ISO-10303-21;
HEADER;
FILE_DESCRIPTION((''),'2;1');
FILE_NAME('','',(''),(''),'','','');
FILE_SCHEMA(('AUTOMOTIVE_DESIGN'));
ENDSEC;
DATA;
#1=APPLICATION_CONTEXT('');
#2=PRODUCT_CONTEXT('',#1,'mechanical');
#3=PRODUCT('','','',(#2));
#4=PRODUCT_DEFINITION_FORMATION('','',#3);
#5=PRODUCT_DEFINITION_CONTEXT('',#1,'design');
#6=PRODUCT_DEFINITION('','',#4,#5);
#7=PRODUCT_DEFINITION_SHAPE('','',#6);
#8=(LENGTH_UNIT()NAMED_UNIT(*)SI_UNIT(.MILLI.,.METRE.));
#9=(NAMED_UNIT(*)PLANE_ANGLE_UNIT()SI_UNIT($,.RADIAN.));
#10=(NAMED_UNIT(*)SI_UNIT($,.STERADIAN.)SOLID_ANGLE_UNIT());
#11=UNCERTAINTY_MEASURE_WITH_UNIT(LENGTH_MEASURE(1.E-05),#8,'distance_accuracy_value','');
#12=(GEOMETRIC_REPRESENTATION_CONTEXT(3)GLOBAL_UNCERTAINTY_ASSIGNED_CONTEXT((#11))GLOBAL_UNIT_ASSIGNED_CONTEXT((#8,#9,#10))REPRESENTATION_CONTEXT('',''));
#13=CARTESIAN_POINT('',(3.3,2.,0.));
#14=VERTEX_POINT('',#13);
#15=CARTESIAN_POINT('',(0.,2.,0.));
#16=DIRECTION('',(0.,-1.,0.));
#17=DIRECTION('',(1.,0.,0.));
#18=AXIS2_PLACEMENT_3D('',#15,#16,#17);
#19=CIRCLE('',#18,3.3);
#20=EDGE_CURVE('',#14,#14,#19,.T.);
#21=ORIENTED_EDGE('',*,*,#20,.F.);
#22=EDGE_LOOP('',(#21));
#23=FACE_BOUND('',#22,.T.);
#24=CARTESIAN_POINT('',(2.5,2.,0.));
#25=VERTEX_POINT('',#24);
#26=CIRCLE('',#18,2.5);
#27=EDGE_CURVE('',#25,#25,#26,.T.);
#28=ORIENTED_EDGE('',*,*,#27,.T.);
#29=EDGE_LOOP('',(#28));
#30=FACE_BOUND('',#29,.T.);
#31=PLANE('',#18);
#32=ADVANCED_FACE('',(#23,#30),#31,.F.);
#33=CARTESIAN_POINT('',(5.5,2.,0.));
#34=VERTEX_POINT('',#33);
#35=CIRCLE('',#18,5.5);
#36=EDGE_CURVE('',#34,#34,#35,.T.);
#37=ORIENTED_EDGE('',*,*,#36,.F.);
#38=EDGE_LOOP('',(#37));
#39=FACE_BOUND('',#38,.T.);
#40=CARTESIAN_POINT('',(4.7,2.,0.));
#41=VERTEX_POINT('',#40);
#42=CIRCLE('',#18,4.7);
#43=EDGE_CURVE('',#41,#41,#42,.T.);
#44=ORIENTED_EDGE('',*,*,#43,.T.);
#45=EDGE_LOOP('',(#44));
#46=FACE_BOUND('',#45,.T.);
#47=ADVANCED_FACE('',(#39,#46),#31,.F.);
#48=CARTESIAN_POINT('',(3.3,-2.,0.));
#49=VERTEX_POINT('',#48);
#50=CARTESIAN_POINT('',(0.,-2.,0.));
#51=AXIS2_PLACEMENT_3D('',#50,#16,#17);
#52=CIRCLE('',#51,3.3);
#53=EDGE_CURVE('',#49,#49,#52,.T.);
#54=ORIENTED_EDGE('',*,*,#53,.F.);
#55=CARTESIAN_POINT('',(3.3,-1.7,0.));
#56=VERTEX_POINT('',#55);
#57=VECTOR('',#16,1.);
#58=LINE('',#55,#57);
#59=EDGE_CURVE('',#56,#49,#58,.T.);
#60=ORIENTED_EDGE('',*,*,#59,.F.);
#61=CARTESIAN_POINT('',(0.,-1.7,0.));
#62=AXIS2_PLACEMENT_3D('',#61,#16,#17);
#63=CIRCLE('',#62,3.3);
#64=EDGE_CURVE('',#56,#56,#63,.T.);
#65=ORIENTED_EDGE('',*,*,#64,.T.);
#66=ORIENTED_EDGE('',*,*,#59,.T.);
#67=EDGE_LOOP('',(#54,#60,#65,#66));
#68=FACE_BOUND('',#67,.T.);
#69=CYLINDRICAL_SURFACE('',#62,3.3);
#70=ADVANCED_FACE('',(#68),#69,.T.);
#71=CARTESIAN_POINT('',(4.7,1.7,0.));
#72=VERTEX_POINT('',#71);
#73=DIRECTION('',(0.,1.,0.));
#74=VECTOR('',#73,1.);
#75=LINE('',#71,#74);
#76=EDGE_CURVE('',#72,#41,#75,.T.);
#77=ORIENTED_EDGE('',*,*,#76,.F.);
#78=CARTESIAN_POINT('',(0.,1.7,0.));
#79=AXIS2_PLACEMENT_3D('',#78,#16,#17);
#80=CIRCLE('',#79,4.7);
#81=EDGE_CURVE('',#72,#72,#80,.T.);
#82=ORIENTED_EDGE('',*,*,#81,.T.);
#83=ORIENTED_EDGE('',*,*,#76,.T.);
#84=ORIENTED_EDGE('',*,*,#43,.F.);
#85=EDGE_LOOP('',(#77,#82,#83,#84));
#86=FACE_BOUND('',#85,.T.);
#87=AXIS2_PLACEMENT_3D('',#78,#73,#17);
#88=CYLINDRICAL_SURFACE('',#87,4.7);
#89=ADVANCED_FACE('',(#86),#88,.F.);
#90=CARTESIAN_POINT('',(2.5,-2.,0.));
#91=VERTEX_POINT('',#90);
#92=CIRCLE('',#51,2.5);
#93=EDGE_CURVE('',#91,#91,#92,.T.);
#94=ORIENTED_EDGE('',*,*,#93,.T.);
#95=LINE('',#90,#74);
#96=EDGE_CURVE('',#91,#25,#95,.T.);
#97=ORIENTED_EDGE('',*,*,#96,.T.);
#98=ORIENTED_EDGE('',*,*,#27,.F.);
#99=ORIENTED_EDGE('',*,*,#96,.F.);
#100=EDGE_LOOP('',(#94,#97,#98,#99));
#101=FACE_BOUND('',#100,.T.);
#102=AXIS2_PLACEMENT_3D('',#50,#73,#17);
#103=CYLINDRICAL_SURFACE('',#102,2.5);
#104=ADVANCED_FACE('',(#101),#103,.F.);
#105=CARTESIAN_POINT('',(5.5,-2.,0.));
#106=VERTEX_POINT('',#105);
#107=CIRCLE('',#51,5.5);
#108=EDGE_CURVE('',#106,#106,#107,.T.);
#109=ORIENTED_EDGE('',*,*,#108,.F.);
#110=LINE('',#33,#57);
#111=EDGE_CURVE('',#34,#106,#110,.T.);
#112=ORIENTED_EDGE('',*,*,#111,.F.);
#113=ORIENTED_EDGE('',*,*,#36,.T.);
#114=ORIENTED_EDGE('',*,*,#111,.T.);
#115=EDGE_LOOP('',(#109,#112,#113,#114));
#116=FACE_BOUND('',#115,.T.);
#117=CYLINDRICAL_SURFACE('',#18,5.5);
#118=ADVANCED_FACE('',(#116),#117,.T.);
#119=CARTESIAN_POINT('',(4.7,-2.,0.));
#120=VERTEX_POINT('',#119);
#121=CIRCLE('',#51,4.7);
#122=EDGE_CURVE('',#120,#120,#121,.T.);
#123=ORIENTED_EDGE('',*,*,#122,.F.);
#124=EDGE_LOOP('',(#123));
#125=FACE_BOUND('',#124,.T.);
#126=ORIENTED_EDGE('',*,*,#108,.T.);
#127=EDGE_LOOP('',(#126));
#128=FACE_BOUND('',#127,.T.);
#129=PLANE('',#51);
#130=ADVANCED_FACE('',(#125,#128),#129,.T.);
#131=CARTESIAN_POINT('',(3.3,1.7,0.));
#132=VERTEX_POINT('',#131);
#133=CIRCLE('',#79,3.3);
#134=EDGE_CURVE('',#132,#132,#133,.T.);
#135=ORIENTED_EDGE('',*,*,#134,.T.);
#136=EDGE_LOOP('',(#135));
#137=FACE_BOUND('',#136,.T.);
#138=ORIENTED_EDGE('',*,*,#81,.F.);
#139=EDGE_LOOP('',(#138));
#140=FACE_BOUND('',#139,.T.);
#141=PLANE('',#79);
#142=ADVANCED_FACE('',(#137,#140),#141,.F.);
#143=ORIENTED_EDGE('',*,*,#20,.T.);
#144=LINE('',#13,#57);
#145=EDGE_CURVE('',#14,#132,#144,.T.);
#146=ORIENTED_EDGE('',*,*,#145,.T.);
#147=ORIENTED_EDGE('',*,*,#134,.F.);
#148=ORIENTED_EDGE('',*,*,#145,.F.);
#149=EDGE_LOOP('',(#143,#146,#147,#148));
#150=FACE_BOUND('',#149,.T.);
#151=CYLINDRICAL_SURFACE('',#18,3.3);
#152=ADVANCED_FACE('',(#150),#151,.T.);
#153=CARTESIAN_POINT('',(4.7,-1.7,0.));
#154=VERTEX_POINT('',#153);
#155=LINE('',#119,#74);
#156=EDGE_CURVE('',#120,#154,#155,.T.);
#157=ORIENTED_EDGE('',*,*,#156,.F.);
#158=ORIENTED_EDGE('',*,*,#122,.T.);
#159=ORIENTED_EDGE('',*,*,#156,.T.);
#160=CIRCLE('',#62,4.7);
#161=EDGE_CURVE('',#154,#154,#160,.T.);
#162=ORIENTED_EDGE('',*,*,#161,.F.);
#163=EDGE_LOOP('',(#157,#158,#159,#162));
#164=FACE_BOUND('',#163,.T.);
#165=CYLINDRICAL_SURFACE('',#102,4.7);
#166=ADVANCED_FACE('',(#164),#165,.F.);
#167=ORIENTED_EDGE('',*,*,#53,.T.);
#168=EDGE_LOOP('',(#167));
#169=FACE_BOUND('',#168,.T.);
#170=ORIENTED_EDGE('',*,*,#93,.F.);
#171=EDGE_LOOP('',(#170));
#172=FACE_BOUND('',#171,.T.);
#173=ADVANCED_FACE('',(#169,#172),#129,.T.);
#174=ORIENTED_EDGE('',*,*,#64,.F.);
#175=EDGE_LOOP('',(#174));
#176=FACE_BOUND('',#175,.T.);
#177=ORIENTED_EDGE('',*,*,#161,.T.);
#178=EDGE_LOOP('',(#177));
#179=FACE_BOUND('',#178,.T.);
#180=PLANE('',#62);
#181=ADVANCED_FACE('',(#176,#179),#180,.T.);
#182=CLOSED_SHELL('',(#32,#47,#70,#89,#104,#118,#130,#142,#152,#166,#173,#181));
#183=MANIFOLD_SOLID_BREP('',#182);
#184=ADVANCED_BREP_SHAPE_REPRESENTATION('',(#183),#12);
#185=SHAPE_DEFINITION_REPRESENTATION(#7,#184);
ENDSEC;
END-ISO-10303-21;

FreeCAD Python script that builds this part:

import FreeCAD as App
import Part
import Sketcher

V = App.Vector
Q = App.Units.Quantity

doc = App.newDocument("Part")
body = doc.addObject("PartDesign::Body", "Body")

# Sketch on XY plane
sketch1 = body.newObject("Sketcher::SketchObject", "Sketch")
sketch1.AttachmentSupport = (doc.getObject("XY_Plane"), [""])
sketch1.MapMode = "FlatFace"
sketch1.addGeometry(Part.LineSegment(V(2.5, 2, 0), V(2.5, -2, 0)), False)
sketch1.addGeometry(Part.LineSegment(V(2.5, -2, 0), V(3.3, -2, 0)), False)
sketch1.addGeometry(Part.LineSegment(V(3.3, -2, 0), V(3.3, -1.7, 0)), False)
sketch1.addGeometry(Part.LineSegment(V(3.3, -1.7, 0), V(4.7, -1.7, 0)), False)
sketch1.addGeometry(Part.LineSegment(V(4.7, -1.7, 0), V(4.7, -2, 0)), False)
sketch1.addGeometry(Part.LineSegment(V(4.7, -2, 0), V(5.5, -2, 0)), False)
sketch1.addGeometry(Part.LineSegment(V(5.5, -2, 0), V(5.5, 2, 0)), False)
sketch1.addGeometry(Part.LineSegment(V(5.5, 2, 0), V(4.7, 2, 0)), False)
sketch1.addGeometry(Part.LineSegment(V(4.7, 2, 0), V(4.7, 1.7, 0)), False)
sketch1.addGeometry(Part.LineSegment(V(4.7, 1.7, 0), V(3.3, 1.7, 0)), False)
sketch1.addGeometry(Part.LineSegment(V(3.3, 1.7, 0), V(3.3, 2, 0)), False)
sketch1.addGeometry(Part.LineSegment(V(3.3, 2, 0), V(2.5, 2, 0)), False)
sketch1.addConstraint(Sketcher.Constraint("Coincident", 0, 2, 1, 1))
sketch1.addConstraint(Sketcher.Constraint("Coincident", 1, 2, 2, 1))
sketch1.addConstraint(Sketcher.Constraint("Coincident", 2, 2, 3, 1))
sketch1.addConstraint(Sketcher.Constraint("Coincident", 3, 2, 4, 1))
sketch1.addConstraint(Sketcher.Constraint("Coincident", 4, 2, 5, 1))
sketch1.addConstraint(Sketcher.Constraint("Coincident", 5, 2, 6, 1))
sketch1.addConstraint(Sketcher.Constraint("Coincident", 6, 2, 7, 1))
sketch1.addConstraint(Sketcher.Constraint("Coincident", 7, 2, 8, 1))
sketch1.addConstraint(Sketcher.Constraint("Coincident", 8, 2, 9, 1))
sketch1.addConstraint(Sketcher.Constraint("Coincident", 9, 2, 10, 1))
sketch1.addConstraint(Sketcher.Constraint("Coincident", 10, 2, 11, 1))
sketch1.addConstraint(Sketcher.Constraint("Coincident", 11, 2, 0, 1))
sketch1.addConstraint(Sketcher.Constraint("Vertical", 0))
sketch1.addConstraint(Sketcher.Constraint("Horizontal", 1))
sketch1.addConstraint(Sketcher.Constraint("Vertical", 2))
sketch1.addConstraint(Sketcher.Constraint("Horizontal", 3))
sketch1.addConstraint(Sketcher.Constraint("Vertical", 4))
sketch1.addConstraint(Sketcher.Constraint("Horizontal", 5))
sketch1.addConstraint(Sketcher.Constraint("Vertical", 6))
sketch1.addConstraint(Sketcher.Constraint("Horizontal", 7))
sketch1.addConstraint(Sketcher.Constraint("Vertical", 8))
sketch1.addConstraint(Sketcher.Constraint("Horizontal", 9))
sketch1.addConstraint(Sketcher.Constraint("Vertical", 10))
sketch1.addConstraint(Sketcher.Constraint("Horizontal", 11))
sketch1.addConstraint(Sketcher.Constraint("Symmetric", 4, 2, 7, 2, -1))
sketch1.addConstraint(Sketcher.Constraint("Symmetric", 2, 2, 9, 2, -1))
sketch1.addConstraint(Sketcher.Constraint("Horizontal", 1, 2, 4, 2))
sketch1.addConstraint(Sketcher.Constraint("Horizontal", 7, 2, 10, 2))
sketch1.addConstraint(Sketcher.Constraint("Equal", 1, 5))
sketch1.addConstraint(Sketcher.Constraint("DistanceY", 0, 2, 0, 1, Q("4 mm")))
sketch1.addConstraint(Sketcher.Constraint("DistanceX", 1, 1, 1, 2, Q("0.8 mm")))
sketch1.addConstraint(Sketcher.Constraint("DistanceX", 3, 1, 3, 2, Q("1.4 mm")))
sketch1.addConstraint(Sketcher.Constraint("DistanceY", 2, 1, 2, 2, Q("0.3 mm")))
sketch1.addConstraint(Sketcher.Constraint("DistanceX", -1, 1, 0, 2, Q("2.5 mm")))
revolution = body.newObject("PartDesign::Revolution", "Revolution")
revolution.Profile = sketch1
revolution.ReferenceAxis = (sketch1, ["V_Axis"])
revolution.Angle = 360

doc.recompute()
